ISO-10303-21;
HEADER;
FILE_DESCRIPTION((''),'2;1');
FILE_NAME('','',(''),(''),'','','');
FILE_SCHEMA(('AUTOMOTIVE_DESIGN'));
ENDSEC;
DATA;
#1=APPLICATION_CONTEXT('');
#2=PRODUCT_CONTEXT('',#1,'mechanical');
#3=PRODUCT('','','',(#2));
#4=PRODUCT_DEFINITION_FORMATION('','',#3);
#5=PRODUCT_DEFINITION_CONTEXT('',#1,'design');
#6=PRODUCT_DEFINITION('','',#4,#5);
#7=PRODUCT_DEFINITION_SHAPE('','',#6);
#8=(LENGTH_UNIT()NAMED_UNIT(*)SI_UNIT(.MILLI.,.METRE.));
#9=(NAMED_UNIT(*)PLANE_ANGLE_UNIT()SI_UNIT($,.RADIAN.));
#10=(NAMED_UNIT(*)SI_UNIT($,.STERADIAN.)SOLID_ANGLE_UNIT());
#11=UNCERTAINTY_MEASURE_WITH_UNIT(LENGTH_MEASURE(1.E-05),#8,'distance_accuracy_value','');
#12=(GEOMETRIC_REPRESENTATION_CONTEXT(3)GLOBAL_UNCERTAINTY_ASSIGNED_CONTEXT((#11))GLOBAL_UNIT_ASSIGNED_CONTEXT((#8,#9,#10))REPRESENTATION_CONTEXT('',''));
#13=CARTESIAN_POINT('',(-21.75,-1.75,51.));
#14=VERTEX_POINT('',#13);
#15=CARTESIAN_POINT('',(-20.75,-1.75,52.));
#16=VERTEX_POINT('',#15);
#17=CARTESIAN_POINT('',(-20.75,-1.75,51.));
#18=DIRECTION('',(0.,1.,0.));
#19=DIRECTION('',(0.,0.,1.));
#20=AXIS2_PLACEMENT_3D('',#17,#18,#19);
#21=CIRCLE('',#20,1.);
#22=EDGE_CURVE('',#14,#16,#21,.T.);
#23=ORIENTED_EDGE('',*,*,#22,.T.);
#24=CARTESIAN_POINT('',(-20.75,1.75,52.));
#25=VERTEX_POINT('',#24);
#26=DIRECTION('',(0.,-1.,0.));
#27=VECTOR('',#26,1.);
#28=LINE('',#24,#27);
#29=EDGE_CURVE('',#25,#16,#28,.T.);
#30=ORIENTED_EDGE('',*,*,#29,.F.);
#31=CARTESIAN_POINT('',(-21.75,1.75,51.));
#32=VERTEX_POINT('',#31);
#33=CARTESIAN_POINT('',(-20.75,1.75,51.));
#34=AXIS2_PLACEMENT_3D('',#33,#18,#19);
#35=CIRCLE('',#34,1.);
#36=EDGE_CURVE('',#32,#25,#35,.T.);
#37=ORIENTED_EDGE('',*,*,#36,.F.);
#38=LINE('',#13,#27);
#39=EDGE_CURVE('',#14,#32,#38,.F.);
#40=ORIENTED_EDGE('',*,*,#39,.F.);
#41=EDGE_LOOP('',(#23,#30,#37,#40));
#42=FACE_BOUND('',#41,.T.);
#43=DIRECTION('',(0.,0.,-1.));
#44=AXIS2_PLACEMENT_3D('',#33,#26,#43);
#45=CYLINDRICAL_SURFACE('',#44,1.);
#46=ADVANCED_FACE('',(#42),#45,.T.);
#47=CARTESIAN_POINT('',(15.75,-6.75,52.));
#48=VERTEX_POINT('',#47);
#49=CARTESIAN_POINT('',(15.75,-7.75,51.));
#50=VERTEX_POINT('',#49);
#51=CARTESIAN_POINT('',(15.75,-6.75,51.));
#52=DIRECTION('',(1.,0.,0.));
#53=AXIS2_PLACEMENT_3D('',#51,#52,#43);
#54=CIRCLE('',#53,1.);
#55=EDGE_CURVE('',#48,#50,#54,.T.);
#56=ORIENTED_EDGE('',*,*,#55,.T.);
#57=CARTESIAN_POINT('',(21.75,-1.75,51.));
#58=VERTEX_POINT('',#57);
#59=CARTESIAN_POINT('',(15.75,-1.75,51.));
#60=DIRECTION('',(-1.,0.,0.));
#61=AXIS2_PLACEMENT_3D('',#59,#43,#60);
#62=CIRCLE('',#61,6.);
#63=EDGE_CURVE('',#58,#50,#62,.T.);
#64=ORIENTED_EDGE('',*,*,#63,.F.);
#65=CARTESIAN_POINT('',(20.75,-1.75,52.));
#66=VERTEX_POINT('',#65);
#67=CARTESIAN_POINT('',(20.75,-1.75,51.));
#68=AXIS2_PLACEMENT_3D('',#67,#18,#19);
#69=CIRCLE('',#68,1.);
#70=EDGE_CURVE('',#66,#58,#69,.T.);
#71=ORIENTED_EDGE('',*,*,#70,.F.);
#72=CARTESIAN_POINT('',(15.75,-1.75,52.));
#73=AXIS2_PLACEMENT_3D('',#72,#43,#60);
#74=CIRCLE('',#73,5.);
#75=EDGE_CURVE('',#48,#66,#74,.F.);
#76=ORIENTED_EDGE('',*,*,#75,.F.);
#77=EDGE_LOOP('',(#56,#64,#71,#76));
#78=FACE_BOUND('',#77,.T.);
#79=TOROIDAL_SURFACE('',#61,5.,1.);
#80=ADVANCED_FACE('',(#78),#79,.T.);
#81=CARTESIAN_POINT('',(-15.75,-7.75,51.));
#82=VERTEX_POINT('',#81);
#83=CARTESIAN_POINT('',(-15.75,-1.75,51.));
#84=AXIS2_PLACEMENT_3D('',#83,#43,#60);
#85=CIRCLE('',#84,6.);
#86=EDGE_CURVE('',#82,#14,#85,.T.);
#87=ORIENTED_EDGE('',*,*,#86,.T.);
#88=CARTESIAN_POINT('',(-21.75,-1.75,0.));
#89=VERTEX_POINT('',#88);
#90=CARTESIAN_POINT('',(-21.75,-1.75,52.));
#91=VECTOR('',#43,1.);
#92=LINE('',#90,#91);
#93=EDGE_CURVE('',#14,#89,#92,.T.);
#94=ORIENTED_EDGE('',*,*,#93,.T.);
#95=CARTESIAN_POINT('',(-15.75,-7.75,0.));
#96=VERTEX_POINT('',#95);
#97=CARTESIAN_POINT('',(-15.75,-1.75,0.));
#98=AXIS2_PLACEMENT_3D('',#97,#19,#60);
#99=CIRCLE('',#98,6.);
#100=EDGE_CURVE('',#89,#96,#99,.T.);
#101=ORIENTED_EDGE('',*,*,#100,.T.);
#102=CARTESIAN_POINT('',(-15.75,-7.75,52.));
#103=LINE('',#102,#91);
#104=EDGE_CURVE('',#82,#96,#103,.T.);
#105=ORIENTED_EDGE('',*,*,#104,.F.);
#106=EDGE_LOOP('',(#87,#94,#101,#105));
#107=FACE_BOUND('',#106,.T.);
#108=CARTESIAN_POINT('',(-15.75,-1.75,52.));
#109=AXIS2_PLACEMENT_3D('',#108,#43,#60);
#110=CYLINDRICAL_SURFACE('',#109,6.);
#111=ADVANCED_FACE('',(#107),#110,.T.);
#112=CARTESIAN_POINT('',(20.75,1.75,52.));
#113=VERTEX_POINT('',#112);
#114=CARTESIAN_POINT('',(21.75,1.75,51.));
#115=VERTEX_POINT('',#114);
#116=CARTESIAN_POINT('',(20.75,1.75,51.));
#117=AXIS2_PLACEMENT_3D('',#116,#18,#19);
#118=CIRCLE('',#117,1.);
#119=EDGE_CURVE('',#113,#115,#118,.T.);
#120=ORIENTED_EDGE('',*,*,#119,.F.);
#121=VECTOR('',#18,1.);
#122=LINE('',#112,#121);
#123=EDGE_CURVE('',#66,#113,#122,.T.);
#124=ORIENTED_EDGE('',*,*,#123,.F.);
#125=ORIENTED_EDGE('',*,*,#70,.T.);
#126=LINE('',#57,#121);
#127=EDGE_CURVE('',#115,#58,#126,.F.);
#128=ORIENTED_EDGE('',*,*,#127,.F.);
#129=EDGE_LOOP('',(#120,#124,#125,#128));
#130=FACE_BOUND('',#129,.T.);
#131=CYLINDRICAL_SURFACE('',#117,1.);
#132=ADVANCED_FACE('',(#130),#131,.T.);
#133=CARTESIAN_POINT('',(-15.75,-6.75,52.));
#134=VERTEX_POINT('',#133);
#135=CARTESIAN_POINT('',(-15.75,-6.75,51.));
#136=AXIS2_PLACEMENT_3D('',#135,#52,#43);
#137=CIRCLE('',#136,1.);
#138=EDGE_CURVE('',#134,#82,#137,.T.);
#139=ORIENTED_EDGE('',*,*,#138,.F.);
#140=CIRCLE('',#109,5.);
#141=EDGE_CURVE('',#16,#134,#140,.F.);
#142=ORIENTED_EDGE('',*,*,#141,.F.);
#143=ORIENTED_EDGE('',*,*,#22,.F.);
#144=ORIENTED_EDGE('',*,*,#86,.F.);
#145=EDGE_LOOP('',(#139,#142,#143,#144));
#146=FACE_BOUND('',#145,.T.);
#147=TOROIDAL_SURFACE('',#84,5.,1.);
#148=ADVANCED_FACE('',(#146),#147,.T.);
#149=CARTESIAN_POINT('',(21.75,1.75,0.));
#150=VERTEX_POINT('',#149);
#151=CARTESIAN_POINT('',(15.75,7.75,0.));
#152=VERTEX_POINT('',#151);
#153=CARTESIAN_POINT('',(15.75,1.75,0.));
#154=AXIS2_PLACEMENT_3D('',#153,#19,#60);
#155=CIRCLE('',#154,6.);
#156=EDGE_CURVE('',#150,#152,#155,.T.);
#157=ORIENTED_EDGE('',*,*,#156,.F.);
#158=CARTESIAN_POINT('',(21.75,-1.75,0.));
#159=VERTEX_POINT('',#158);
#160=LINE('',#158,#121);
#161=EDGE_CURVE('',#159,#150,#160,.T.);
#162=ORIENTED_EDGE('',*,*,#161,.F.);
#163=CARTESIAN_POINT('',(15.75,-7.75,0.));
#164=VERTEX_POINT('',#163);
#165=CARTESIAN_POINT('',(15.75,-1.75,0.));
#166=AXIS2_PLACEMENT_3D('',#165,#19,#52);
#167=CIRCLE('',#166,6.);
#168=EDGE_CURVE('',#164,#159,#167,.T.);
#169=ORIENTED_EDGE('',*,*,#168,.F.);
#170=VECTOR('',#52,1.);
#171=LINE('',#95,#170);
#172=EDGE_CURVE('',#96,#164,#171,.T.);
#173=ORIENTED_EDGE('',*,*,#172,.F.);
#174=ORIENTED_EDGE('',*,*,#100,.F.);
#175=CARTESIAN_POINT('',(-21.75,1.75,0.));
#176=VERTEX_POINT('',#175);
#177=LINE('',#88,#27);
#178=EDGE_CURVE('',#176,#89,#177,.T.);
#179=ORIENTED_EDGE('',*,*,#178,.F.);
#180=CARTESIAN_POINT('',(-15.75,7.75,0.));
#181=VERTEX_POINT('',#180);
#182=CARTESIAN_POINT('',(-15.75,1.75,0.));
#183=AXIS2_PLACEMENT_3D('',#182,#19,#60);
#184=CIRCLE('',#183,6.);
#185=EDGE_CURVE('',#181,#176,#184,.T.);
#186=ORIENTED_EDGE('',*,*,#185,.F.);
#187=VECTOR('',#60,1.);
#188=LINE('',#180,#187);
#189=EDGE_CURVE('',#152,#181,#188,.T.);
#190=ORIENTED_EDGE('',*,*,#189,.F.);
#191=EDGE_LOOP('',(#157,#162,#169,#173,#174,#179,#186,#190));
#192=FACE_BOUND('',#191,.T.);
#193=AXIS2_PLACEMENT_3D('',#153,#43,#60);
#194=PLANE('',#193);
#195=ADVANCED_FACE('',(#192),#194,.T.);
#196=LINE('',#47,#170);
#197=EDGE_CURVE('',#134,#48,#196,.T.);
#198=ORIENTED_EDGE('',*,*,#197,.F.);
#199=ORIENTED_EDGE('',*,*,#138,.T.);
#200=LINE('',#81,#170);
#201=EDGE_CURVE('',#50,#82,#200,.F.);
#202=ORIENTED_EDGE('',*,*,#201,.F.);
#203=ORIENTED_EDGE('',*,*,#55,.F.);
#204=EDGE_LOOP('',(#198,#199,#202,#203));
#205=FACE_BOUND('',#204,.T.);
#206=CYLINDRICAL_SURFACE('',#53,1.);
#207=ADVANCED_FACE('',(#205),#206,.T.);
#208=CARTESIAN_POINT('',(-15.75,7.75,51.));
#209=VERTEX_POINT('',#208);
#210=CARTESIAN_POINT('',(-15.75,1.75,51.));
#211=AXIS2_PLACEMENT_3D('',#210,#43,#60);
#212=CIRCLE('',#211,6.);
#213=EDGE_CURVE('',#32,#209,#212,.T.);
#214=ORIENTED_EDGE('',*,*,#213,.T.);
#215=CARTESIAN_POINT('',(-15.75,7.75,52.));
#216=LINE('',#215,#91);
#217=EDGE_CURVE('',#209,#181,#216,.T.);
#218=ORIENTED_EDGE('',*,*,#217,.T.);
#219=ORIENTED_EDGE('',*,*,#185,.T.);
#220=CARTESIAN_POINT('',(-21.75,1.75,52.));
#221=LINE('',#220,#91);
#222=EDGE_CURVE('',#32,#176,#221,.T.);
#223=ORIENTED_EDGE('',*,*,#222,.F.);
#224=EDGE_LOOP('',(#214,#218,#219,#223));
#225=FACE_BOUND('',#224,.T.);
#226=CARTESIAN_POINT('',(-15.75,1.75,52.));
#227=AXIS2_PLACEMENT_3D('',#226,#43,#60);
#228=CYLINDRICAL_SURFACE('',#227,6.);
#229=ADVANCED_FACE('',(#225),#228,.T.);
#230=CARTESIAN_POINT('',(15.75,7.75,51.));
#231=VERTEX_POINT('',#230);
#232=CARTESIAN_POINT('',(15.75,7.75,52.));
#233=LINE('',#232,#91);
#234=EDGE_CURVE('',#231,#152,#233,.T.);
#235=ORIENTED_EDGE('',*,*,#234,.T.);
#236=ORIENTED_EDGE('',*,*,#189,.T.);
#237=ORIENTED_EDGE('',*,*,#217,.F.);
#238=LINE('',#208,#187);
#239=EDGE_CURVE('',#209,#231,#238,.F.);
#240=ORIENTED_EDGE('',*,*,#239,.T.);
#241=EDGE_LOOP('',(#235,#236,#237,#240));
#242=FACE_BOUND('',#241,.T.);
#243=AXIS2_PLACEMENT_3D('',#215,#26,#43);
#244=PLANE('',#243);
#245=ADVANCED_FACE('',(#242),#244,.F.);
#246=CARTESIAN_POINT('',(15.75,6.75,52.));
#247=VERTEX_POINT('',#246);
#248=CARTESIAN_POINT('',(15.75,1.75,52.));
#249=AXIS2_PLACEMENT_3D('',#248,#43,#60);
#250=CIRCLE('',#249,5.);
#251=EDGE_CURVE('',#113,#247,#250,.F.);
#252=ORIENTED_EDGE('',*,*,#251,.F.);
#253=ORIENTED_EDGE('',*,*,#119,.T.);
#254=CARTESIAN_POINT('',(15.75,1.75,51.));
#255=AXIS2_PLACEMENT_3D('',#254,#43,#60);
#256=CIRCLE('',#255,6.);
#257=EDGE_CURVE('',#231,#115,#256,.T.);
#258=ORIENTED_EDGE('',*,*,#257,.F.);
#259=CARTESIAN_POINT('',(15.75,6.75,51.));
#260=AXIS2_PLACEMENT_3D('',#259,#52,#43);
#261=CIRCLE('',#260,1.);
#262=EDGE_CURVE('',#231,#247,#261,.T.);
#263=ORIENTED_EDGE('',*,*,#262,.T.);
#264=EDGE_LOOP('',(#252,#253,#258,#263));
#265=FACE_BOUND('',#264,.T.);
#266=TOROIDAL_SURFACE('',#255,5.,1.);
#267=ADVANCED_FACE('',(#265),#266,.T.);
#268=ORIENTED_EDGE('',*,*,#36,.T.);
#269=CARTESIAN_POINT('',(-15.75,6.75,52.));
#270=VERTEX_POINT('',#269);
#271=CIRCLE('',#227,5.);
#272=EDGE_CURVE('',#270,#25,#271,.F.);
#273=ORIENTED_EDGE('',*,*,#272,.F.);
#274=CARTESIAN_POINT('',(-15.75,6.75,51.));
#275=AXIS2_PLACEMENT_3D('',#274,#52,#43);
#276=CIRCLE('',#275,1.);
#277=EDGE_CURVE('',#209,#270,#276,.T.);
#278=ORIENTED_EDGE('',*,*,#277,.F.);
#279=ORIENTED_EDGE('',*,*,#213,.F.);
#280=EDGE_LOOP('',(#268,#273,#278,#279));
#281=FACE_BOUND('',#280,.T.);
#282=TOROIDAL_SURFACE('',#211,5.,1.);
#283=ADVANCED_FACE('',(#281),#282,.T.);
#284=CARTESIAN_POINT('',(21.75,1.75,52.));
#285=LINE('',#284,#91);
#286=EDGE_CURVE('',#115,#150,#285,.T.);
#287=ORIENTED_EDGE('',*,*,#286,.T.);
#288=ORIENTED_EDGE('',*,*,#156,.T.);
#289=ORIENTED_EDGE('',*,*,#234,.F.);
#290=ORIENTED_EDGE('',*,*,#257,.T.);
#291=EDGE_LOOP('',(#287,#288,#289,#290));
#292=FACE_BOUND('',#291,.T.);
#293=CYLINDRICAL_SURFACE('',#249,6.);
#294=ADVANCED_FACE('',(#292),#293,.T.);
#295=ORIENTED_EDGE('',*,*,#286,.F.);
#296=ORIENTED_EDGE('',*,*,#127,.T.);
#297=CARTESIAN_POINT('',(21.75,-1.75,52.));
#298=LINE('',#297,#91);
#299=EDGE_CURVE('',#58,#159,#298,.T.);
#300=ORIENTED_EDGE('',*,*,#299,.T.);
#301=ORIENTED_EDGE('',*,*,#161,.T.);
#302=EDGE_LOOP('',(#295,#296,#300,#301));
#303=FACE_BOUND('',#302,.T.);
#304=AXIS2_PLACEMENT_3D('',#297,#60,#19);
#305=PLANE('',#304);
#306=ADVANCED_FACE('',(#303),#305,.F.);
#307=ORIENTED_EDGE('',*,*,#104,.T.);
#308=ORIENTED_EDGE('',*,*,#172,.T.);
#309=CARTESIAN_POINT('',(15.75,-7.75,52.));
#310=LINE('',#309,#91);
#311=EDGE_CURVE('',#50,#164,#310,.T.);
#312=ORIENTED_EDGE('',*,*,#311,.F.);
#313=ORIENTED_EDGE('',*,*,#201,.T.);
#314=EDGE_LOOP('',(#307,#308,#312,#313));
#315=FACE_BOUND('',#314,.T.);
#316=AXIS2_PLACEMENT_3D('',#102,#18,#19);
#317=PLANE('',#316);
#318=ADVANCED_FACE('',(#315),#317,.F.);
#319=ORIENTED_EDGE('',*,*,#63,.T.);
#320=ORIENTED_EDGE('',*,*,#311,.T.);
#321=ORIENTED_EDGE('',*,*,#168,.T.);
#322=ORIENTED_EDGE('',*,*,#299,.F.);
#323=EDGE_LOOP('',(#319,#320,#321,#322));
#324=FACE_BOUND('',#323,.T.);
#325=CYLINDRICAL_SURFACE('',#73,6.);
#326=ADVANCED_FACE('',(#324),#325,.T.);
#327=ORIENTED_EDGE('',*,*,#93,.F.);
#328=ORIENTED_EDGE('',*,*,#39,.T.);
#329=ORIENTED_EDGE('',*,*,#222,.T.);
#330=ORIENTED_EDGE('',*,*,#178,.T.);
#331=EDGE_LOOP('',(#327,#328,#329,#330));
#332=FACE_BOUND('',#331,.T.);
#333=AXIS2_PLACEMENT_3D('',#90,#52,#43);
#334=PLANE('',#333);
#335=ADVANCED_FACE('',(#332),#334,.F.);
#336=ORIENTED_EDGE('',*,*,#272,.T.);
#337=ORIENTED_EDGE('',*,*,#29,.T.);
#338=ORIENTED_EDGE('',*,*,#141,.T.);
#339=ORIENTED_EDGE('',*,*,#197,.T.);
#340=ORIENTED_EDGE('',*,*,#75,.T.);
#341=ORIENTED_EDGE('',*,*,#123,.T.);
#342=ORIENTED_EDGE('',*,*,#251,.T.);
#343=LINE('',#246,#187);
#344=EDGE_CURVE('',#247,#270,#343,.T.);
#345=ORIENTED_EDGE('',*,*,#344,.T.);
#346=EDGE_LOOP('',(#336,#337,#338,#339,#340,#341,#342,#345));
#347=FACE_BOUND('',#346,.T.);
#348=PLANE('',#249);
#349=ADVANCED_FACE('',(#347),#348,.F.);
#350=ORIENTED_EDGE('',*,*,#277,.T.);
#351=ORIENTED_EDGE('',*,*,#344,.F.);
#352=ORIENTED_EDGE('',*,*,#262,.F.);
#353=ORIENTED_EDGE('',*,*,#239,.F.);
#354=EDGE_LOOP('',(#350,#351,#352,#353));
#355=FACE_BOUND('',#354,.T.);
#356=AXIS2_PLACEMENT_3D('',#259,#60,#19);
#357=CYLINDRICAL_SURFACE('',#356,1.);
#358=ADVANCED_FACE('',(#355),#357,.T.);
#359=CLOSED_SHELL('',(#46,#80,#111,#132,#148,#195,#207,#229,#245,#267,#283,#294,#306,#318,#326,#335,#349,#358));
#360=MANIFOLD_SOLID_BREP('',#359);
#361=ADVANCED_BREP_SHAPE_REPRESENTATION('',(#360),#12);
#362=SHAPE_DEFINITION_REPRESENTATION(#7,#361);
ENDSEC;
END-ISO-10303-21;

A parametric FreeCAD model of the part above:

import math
import FreeCAD as App
import Part
import Sketcher
from FreeCAD import Vector


def edges_at(feature, points):
    """Names of the edges that pass closest to the given points."""
    edges = feature.Shape.Edges
    near = lambda p: min(range(len(edges)), key=lambda i: edges[i].distToShape(Part.Vertex(*p))[0])
    return sorted({f"Edge{near(p) + 1}" for p in points})

doc = App.newDocument("Part")
body = doc.addObject("PartDesign::Body", "Body")

sketch1 = body.newObject("Sketcher::SketchObject", "Sketch")
sketch1.AttachmentSupport = (doc.getObject("XY_Plane"), [""])
sketch1.MapMode = "FlatFace"
sketch1.addGeometry(Part.LineSegment(Vector(-15.8, -7.8, 0), Vector(15.8, -7.8, 0)), False)
sketch1.addGeometry(Part.ArcOfCircle(Part.Circle(Vector(15.8, -1.8, 0), Vector(0, 0, 1), 6), math.radians(-90), math.radians(0)), False)
sketch1.addGeometry(Part.LineSegment(Vector(21.8, -1.8, 0), Vector(21.8, 1.8, 0)), False)
sketch1.addGeometry(Part.ArcOfCircle(Part.Circle(Vector(15.8, 1.8, 0), Vector(0, 0, 1), 6), math.radians(0), math.radians(90)), False)
sketch1.addGeometry(Part.LineSegment(Vector(15.8, 7.8, 0), Vector(-15.8, 7.8, 0)), False)
sketch1.addGeometry(Part.ArcOfCircle(Part.Circle(Vector(-15.8, 1.8, 0), Vector(0, 0, 1), 6), math.radians(90), math.radians(180)), False)
sketch1.addGeometry(Part.LineSegment(Vector(-21.8, 1.8, 0), Vector(-21.8, -1.8, 0)), False)
sketch1.addGeometry(Part.ArcOfCircle(Part.Circle(Vector(-15.8, -1.8, 0), Vector(0, 0, 1), 6), math.radians(180), math.radians(270)), False)
sketch1.addConstraint(Sketcher.Constraint("Tangent", 0, 2, 1, 1))
sketch1.addConstraint(Sketcher.Constraint("Tangent", 1, 2, 2, 1))
sketch1.addConstraint(Sketcher.Constraint("Tangent", 2, 2, 3, 1))
sketch1.addConstraint(Sketcher.Constraint("Tangent", 3, 2, 4, 1))
sketch1.addConstraint(Sketcher.Constraint("Tangent", 4, 2, 5, 1))
sketch1.addConstraint(Sketcher.Constraint("Tangent", 5, 2, 6, 1))
sketch1.addConstraint(Sketcher.Constraint("Tangent", 6, 2, 7, 1))
sketch1.addConstraint(Sketcher.Constraint("Tangent", 7, 2, 0, 1))
sketch1.addConstraint(Sketcher.Constraint("Horizontal", 0))
sketch1.addConstraint(Sketcher.Constraint("Vertical", 2))
sketch1.addConstraint(Sketcher.Constraint("Horizontal", 4))
sketch1.addConstraint(Sketcher.Constraint("Vertical", 6))
sketch1.addConstraint(Sketcher.Constraint("Equal", 1, 3))
sketch1.addConstraint(Sketcher.Constraint("Equal", 3, 5))
sketch1.addConstraint(Sketcher.Constraint("Equal", 5, 7))
sketch1.addConstraint(Sketcher.Constraint("Symmetric", 1, 3, 5, 3, -1, 1))
sketch1.addConstraint(Sketcher.Constraint("Radius", 1, 6.0))
sketch1.addConstraint(Sketcher.Constraint("DistanceX", 0, 1, 0, 2, 31.5))
sketch1.addConstraint(Sketcher.Constraint("DistanceY", 2, 1, 2, 2, 3.5))
pad1 = body.newObject("PartDesign::Pad", "Pad")
pad1.Profile = sketch1
pad1.Length = 52
doc.recompute()

fillet = body.newObject("PartDesign::Fillet", "Fillet")
fillet.Base = (pad1, edges_at(pad1, [
    (-19.993, 5.993, 52),
    (-21.75, 0, 52),
    (-19.993, -5.993, 52),
    (0, -7.75, 52),
    (19.993, -5.993, 52),
    (21.75, 0, 52),
    (19.993, 5.993, 52),
    (0, 7.75, 52),
]))
fillet.Radius = 1

doc.recompute()
